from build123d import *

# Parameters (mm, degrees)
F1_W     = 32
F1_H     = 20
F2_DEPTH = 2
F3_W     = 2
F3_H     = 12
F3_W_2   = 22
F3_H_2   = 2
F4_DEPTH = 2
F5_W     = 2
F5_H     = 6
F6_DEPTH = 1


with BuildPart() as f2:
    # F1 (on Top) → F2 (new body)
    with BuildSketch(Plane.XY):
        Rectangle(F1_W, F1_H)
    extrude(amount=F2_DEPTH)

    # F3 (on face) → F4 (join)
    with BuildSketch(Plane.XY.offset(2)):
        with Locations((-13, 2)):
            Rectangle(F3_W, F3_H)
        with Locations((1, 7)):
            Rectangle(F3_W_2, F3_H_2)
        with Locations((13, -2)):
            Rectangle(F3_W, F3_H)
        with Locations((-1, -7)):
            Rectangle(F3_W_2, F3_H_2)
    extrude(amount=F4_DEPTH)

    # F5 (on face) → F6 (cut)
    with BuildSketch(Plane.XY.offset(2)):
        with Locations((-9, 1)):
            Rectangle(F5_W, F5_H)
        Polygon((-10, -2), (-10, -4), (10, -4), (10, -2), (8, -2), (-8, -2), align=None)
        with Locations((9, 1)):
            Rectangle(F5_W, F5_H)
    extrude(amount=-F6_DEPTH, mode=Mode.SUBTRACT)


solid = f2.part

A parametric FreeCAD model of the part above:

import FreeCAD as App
import Part
import Sketcher
from FreeCAD import Vector
Q = App.Units.Quantity


def add_polygon(sketch, points):
    """Adds a closed chain of lines whose ends are joined by coincident constraints."""
    first, n = sketch.GeometryCount, len(points)
    for a, b in zip(points, points[1:] + points[:1]):
        sketch.addGeometry(Part.LineSegment(App.Vector(*a, 0), App.Vector(*b, 0)), False)
    for i in range(n):
        sketch.addConstraint(Sketcher.Constraint("Coincident", first + i, 2, first + (i + 1) % n, 1))

doc = App.newDocument("Part")
body = doc.addObject("PartDesign::Body", "Body")

# Sketch on XY plane
sketch1 = doc.addObject("Sketcher::SketchObject", "Sketch")
body.addObject(sketch1)
sketch1.AttachmentSupport = (doc.XY_Plane, [""])
sketch1.MapMode = "FlatFace"
add_polygon(sketch1, [(-16, 10), (-16, -10), (16, -10), (16, 10)])  # lines 0-3
sketch1.addConstraint(Sketcher.Constraint("Vertical", 0))
sketch1.addConstraint(Sketcher.Constraint("Horizontal", 1))
sketch1.addConstraint(Sketcher.Constraint("Vertical", 2))
sketch1.addConstraint(Sketcher.Constraint("Horizontal", 3))
sketch1.addConstraint(Sketcher.Constraint("Symmetric", 0, 2, 2, 2, -1, 1))
sketch1.addConstraint(Sketcher.Constraint("DistanceX", 1, 1, 1, 2, Q("32 mm")))
sketch1.addConstraint(Sketcher.Constraint("DistanceY", 0, 2, 0, 1, Q("20 mm")))
pad1 = doc.addObject("PartDesign::Pad", "Pad")
body.addObject(pad1)
pad1.Profile = sketch1
pad1.Length = 2

# Sketch on XY plane
sketch2 = doc.addObject("Sketcher::SketchObject", "Sketch001")
body.addObject(sketch2)
sketch2.AttachmentSupport = (doc.XY_Plane, [""])
sketch2.MapMode = "FlatFace"
sketch2.AttachmentOffset = App.Placement(Vector(0, 0, 2), App.Rotation())
add_polygon(sketch2, [(-14, 8), (-14, -4), (-12, -4), (-12, 8)])  # lines 0-3
add_polygon(sketch2, [(-10, 8), (-10, 6), (12, 6), (12, 8)])  # lines 4-7
add_polygon(sketch2, [(12, 4), (12, -8), (14, -8), (14, 4)])  # lines 8-11
add_polygon(sketch2, [(-12, -6), (-12, -8), (10, -8), (10, -6)])  # lines 12-15
sketch2.addConstraint(Sketcher.Constraint("Vertical", 0))
sketch2.addConstraint(Sketcher.Constraint("Horizontal", 1))
sketch2.addConstraint(Sketcher.Constraint("Vertical", 2))
sketch2.addConstraint(Sketcher.Constraint("Horizontal", 3))
sketch2.addConstraint(Sketcher.Constraint("Vertical", 4))
sketch2.addConstraint(Sketcher.Constraint("Horizontal", 5))
sketch2.addConstraint(Sketcher.Constraint("Vertical", 6))
sketch2.addConstraint(Sketcher.Constraint("Horizontal", 7))
sketch2.addConstraint(Sketcher.Constraint("Vertical", 8))
sketch2.addConstraint(Sketcher.Constraint("Horizontal", 9))
sketch2.addConstraint(Sketcher.Constraint("Vertical", 10))
sketch2.addConstraint(Sketcher.Constraint("Horizontal", 11))
sketch2.addConstraint(Sketcher.Constraint("Vertical", 12))
sketch2.addConstraint(Sketcher.Constraint("Horizontal", 13))
sketch2.addConstraint(Sketcher.Constraint("Vertical", 14))
sketch2.addConstraint(Sketcher.Constraint("Horizontal", 15))
sketch2.addConstraint(Sketcher.Constraint("Symmetric", 2, 2, 8, 2, -1, 1))
sketch2.addConstraint(Sketcher.Constraint("Symmetric", 0, 2, 10, 2, -1, 1))
sketch2.addConstraint(Sketcher.Constraint("Symmetric", 6, 2, 12, 2, -1, 1))
sketch2.addConstraint(Sketcher.Constraint("Symmetric", 4, 2, 14, 2, -1, 1))
sketch2.addConstraint(Sketcher.Constraint("Symmetric", 2, 2, 6, 2, -2))
sketch2.addConstraint(Sketcher.Constraint("Equal", 11, 4))
sketch2.addConstraint(Sketcher.Constraint("DistanceX", 1, 1, 1, 2, Q("2 mm")))
sketch2.addConstraint(Sketcher.Constraint("DistanceX", 5, 1, 5, 2, Q("22 mm")))
sketch2.addConstraint(Sketcher.Constraint("DistanceY", 0, 2, 0, 1, Q("12 mm")))
sketch2.addConstraint(Sketcher.Constraint("DistanceX", 0, 2, -1, 1, Q("14 mm")))
sketch2.addConstraint(Sketcher.Constraint("DistanceY", 0, 2, -1, 1, Q("4 mm")))
pad2 = doc.addObject("PartDesign::Pad", "Pad001")
body.addObject(pad2)
pad2.Profile = sketch2
pad2.Length = 2

# Sketch on XY plane
sketch3 = doc.addObject("Sketcher::SketchObject", "Sketch002")
body.addObject(sketch3)
sketch3.AttachmentSupport = (doc.XY_Plane, [""])
sketch3.MapMode = "FlatFace"
sketch3.AttachmentOffset = App.Placement(Vector(0, 0, 2), App.Rotation())
add_polygon(sketch3, [(-10, 4), (-10, -4), (10, -4), (10, 4), (8, 4), (8, -2), (-8, -2), (-8, 4)])  # lines 0-7
sketch3.addConstraint(Sketcher.Constraint("Vertical", 0))
sketch3.addConstraint(Sketcher.Constraint("Horizontal", 1))
sketch3.addConstraint(Sketcher.Constraint("Vertical", 2))
sketch3.addConstraint(Sketcher.Constraint("Horizontal", 3))
sketch3.addConstraint(Sketcher.Constraint("Vertical", 4))
sketch3.addConstraint(Sketcher.Constraint("Horizontal", 5))
sketch3.addConstraint(Sketcher.Constraint("Vertical", 6))
sketch3.addConstraint(Sketcher.Constraint("Horizontal", 7))
sketch3.addConstraint(Sketcher.Constraint("Symmetric", 0, 2, 2, 2, -1, 1))
sketch3.addConstraint(Sketcher.Constraint("Symmetric", 3, 2, 6, 2, -2))
sketch3.addConstraint(Sketcher.Constraint("DistanceX", 1, 1, 1, 2, Q("20 mm")))
sketch3.addConstraint(Sketcher.Constraint("DistanceX", 3, 2, 3, 1, Q("2 mm")))
sketch3.addConstraint(Sketcher.Constraint("DistanceY", 0, 2, 0, 1, Q("8 mm")))
sketch3.addConstraint(Sketcher.Constraint("DistanceY", 4, 2, 4, 1, Q("6 mm")))
pocket1 = doc.addObject("PartDesign::Pocket", "Pocket")
body.addObject(pocket1)
pocket1.Profile = sketch3
pocket1.Length = 1

doc.recompute()
